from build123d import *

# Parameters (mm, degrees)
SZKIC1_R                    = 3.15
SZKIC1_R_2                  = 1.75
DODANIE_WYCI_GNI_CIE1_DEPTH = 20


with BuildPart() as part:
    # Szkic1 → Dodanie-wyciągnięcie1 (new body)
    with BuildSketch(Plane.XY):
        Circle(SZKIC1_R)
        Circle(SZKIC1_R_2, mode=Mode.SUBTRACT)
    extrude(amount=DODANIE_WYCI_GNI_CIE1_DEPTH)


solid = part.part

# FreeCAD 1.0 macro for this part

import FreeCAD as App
import Part
import Sketcher
Q = App.Units.Quantity

doc = App.newDocument("Part")
body = doc.addObject("PartDesign::Body", "Body")

sketch1 = body.newObject("Sketcher::SketchObject", "Sketch")
sketch1.AttachmentSupport = (doc.getObject("XY_Plane"), [""])
sketch1.MapMode = "FlatFace"
sketch1.addGeometry([
    Part.Circle(App.Vector(0, 0, 0), App.Vector(0, 0, 1), 3.15),
    Part.Circle(App.Vector(0, 0, 0), App.Vector(0, 0, 1), 1.75),
], False)
sketch1.addConstraint([
    Sketcher.Constraint("Coincident", 0, 3, -1, 1),
    Sketcher.Constraint("Coincident", 1, 3, -1, 1),
    Sketcher.Constraint("Diameter", 0, Q("6.3 mm")),
    Sketcher.Constraint("Diameter", 1, Q("3.5 mm")),
])
pad1 = body.newObject("PartDesign::Pad", "Pad")
pad1.Profile = sketch1
pad1.Length = 20

doc.recompute()
